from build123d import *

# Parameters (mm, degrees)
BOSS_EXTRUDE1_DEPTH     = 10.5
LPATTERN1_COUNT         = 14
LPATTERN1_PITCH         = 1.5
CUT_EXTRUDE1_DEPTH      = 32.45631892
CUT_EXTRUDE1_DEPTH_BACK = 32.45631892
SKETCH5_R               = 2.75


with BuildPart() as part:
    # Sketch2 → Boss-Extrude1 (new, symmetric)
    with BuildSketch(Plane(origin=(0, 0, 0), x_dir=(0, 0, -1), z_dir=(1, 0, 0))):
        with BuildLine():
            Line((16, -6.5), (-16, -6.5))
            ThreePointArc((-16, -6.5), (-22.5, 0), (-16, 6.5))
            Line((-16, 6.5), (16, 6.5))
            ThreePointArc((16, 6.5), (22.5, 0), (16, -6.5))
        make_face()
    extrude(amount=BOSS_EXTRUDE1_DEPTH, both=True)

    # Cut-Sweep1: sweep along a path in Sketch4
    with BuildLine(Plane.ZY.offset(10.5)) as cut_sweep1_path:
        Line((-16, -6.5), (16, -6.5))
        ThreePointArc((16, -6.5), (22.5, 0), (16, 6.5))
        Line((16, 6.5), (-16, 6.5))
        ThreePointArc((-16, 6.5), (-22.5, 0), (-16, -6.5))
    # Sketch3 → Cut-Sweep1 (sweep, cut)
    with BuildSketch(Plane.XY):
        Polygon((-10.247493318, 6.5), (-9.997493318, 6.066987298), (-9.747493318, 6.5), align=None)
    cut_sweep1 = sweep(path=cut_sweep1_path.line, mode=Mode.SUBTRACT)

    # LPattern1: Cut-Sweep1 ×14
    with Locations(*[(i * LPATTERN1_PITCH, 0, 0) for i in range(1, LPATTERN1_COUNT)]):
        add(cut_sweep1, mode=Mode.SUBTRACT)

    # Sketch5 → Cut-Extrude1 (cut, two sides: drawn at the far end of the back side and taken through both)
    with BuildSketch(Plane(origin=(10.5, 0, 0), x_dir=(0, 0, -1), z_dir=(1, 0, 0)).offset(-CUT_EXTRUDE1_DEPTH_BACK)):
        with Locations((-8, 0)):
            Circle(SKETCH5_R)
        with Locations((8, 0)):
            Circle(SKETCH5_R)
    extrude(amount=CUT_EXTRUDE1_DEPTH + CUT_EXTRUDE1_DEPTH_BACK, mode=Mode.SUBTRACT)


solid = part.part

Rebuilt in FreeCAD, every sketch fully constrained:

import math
import FreeCAD as App
import Part
import Sketcher

V = App.Vector
Q = App.Units.Quantity


def add_polygon(sketch, points):
    """Adds a closed chain of lines whose ends are joined by coincident constraints."""
    first, n = sketch.GeometryCount, len(points)
    for a, b in zip(points, points[1:] + points[:1]):
        sketch.addGeometry(Part.LineSegment(App.Vector(*a, 0), App.Vector(*b, 0)), False)
    for i in range(n):
        sketch.addConstraint(Sketcher.Constraint("Coincident", first + i, 2, first + (i + 1) % n, 1))

doc = App.newDocument("Part")
body = doc.addObject("PartDesign::Body", "Body")

# Sketch on YZ plane
sketch1 = body.newObject("Sketcher::SketchObject", "Sketch")
sketch1.AttachmentSupport = (doc.getObject("YZ_Plane"), [""])
sketch1.MapMode = "FlatFace"
sketch1.addGeometry([
    Part.LineSegment(V(-6, 16, 0), V(-6, -16, 0)),
    Part.ArcOfCircle(Part.Circle(V(0, -16, 0), V(0, 0, 1), 6), math.radians(180), math.radians(360)),
    Part.LineSegment(V(6, -16, 0), V(6, 16, 0)),
    Part.ArcOfCircle(Part.Circle(V(0, 16, 0), V(0, 0, 1), 6), math.radians(0), math.radians(180)),
], False)
sketch1.addConstraint([
    Sketcher.Constraint("Tangent", 0, 2, 1, 1),
    Sketcher.Constraint("Tangent", 1, 2, 2, 1),
    Sketcher.Constraint("Tangent", 2, 2, 3, 1),
    Sketcher.Constraint("Tangent", 3, 2, 0, 1),
    Sketcher.Constraint("Vertical", 0),
    Sketcher.Constraint("Vertical", 2),
    Sketcher.Constraint("Symmetric", 1, 3, 3, 3, -1, 1),
    Sketcher.Constraint("Radius", 1, 6.5),
    Sketcher.Constraint("DistanceY", 0, 2, 0, 1, 32.0),
])
pad1 = body.newObject("PartDesign::Pad", "Pad")
pad1.Profile = sketch1
pad1.Length = 21
pad1.Midplane = True

# Sketch on XY plane
sketch2 = body.newObject("Sketcher::SketchObject", "Sketch001")
sketch2.AttachmentSupport = (doc.getObject("XY_Plane"), [""])
sketch2.MapMode = "FlatFace"
add_polygon(sketch2, [(-10.2, 6.5), (-10, 6.1), (-9.7, 6.5)])  # lines 0-2
sketch2.addConstraint([
    Sketcher.Constraint("Horizontal", 2),
    Sketcher.Constraint("Equal", 0, 1),
    Sketcher.Constraint("Angle", 0, Q("-60 deg")),
    Sketcher.Constraint("DistanceX", 2, 2, 2, 1, 0.5),
    Sketcher.Constraint("DistanceY", -1, 1, 1, 2, 6.5),
    Sketcher.Constraint("DistanceX", 0, 2, -1, 1, 9.997493),
])

# Sketch on YZ plane
sketch3 = body.newObject("Sketcher::SketchObject", "Sketch002")
sketch3.AttachmentSupport = (doc.getObject("YZ_Plane"), [""])
sketch3.MapMode = "FlatFace"
sketch3.AttachmentOffset = App.Placement(V(0, 0, -10.5), App.Rotation())
sketch3.addGeometry([
    Part.LineSegment(V(-6, -16, 0), V(-6, 16, 0)),
    Part.ArcOfCircle(Part.Circle(V(0, 16, 0), V(0, 0, 1), 6), math.radians(0), math.radians(180)),
    Part.LineSegment(V(6, 16, 0), V(6, -16, 0)),
    Part.ArcOfCircle(Part.Circle(V(0, -16, 0), V(0, 0, 1), 6), math.radians(180), math.radians(360)),
], False)
sketch3.addConstraint([
    Sketcher.Constraint("Tangent", 0, 2, 1, 2),
    Sketcher.Constraint("Tangent", 1, 1, 2, 1),
    Sketcher.Constraint("Tangent", 2, 2, 3, 2),
    Sketcher.Constraint("Tangent", 3, 1, 0, 1),
    Sketcher.Constraint("Vertical", 0),
    Sketcher.Constraint("Vertical", 2),
    Sketcher.Constraint("Symmetric", 1, 3, 3, 3, -1, 1),
    Sketcher.Constraint("Radius", 1, 6.5),
    Sketcher.Constraint("DistanceY", 0, 1, 0, 2, 32.0),
])
doc.recompute()

subtractivepipe = body.newObject("PartDesign::SubtractivePipe", "SubtractivePipe")
subtractivepipe.Profile = sketch2
subtractivepipe.Spine = (sketch3, ["Edge1", "Edge2", "Edge3", "Edge4"])
doc.recompute()

linearpattern = body.newObject("PartDesign::LinearPattern", "LinearPattern")
linearpattern.Originals = [subtractivepipe]
linearpattern.Direction = (doc.getObject("X_Axis"), [""])
linearpattern.Mode = "offset"
linearpattern.Offset = 1.5
linearpattern.Occurrences = 14
body.Tip = linearpattern

# Sketch on YZ plane
sketch4 = body.newObject("Sketcher::SketchObject", "Sketch003")
sketch4.AttachmentSupport = (doc.getObject("YZ_Plane"), [""])
sketch4.MapMode = "FlatFace"
sketch4.AttachmentOffset = App.Placement(V(0, 0, 10.5), App.Rotation())
sketch4.addGeometry([
    Part.Circle(V(0, 8, 0), V(0, 0, 1), 2.8),
    Part.Circle(V(0, -8, 0), V(0, 0, 1), 2.8),
], False)
sketch4.addConstraint([
    Sketcher.Constraint("Equal", 0, 1),
    Sketcher.Constraint("Symmetric", 0, 3, 1, 3, -1, 1),
    Sketcher.Constraint("PointOnObject", 0, 3, -2),
    Sketcher.Constraint("Diameter", 0, 5.5),
    Sketcher.Constraint("DistanceY", -1, 1, 0, 3, 8.0),
])
pocket1 = body.newObject("PartDesign::Pocket", "Pocket")
pocket1.Profile = sketch4
pocket1.Type = "ThroughAll"
pocket1.Midplane = True

doc.recompute()
